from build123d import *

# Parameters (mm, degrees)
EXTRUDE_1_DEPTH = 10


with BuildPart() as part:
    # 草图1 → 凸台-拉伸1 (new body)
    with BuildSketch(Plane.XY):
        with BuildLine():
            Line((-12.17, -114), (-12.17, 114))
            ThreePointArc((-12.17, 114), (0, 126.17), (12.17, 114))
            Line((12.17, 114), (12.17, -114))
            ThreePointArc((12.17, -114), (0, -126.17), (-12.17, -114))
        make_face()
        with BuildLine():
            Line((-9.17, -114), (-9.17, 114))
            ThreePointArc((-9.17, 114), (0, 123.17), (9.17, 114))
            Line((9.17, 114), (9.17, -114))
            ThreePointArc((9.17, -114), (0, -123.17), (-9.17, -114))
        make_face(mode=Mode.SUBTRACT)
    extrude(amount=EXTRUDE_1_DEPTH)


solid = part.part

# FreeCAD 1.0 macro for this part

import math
import FreeCAD as App
import Part
import Sketcher

V = App.Vector
Q = App.Units.Quantity

doc = App.newDocument("Part")
body = doc.addObject("PartDesign::Body", "Body")

# Sketch on XY plane
sketch1 = body.newObject("Sketcher::SketchObject", "Sketch")
sketch1.AttachmentSupport = (doc.getObject("XY_Plane"), [""])
sketch1.MapMode = "FlatFace"
sketch1.addGeometry([
    Part.LineSegment(V(-12, 114, 0), V(-12, -114, 0)),  # 0
    Part.ArcOfCircle(Part.Circle(V(0, -114, 0), V(0, 0, 1), 12), math.radians(180), math.radians(360)),  # 1
    Part.LineSegment(V(12, -114, 0), V(12, 114, 0)),  # 2
    Part.ArcOfCircle(Part.Circle(V(0, 114, 0), V(0, 0, 1), 12), math.radians(0), math.radians(180)),  # 3
    Part.LineSegment(V(-9, -114, 0), V(-9, 114, 0)),  # 4
    Part.ArcOfCircle(Part.Circle(V(0, 114, 0), V(0, 0, 1), 9), math.radians(0), math.radians(180)),  # 5
    Part.LineSegment(V(9, 114, 0), V(9, -114, 0)),  # 6
    Part.ArcOfCircle(Part.Circle(V(0, -114, 0), V(0, 0, 1), 9), math.radians(180), math.radians(360)),  # 7
], False)
sketch1.addConstraint([
    Sketcher.Constraint("Tangent", 0, 2, 1, 1),
    Sketcher.Constraint("Tangent", 1, 2, 2, 1),
    Sketcher.Constraint("Tangent", 2, 2, 3, 1),
    Sketcher.Constraint("Tangent", 3, 2, 0, 1),
    Sketcher.Constraint("Tangent", 4, 2, 5, 2),
    Sketcher.Constraint("Tangent", 5, 1, 6, 1),
    Sketcher.Constraint("Tangent", 6, 2, 7, 2),
    Sketcher.Constraint("Tangent", 7, 1, 4, 1),
    Sketcher.Constraint("Vertical", 0),
    Sketcher.Constraint("Vertical", 2),
    Sketcher.Constraint("Vertical", 4),
    Sketcher.Constraint("Vertical", 6),
    Sketcher.Constraint("Coincident", 5, 3, 3, 3),
    Sketcher.Constraint("Symmetric", 1, 3, 3, 3, -1, 1),
    Sketcher.Constraint("Horizontal", 7, 3, 0, 2),
    Sketcher.Constraint("DistanceY", 0, 2, 0, 1, Q("228 mm")),
    Sketcher.Constraint("Radius", 1, Q("12.17 mm")),
    Sketcher.Constraint("Radius", 5, Q("9.17 mm")),
])
pad1 = body.newObject("PartDesign::Pad", "Pad")
pad1.Profile = sketch1
pad1.Length = 10

doc.recompute()
